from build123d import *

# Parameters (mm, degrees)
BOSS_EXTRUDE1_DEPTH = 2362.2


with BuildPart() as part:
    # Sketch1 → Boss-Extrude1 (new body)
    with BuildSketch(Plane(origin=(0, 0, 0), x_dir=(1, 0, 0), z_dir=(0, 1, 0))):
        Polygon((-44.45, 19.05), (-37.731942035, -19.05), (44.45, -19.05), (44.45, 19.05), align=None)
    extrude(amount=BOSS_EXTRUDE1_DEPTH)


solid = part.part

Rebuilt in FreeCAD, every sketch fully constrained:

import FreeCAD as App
import Part
import Sketcher
from FreeCAD import Vector
Q = App.Units.Quantity

doc = App.newDocument("Part")
body = doc.addObject("PartDesign::Body", "Body")

sketch1 = body.newObject("Sketcher::SketchObject", "Sketch")
sketch1.AttachmentSupport = (doc.getObject("XZ_Plane"), [""])
sketch1.MapMode = "FlatFace"
sketch1.addGeometry(Part.LineSegment(Vector(-44, -19, 0), Vector(-38, 19, 0)), False)
sketch1.addGeometry(Part.LineSegment(Vector(-38, 19, 0), Vector(44, 19, 0)), False)
sketch1.addGeometry(Part.LineSegment(Vector(44, 19, 0), Vector(44, -19, 0)), False)
sketch1.addGeometry(Part.LineSegment(Vector(44, -19, 0), Vector(-44, -19, 0)), False)
sketch1.addConstraint(Sketcher.Constraint("Coincident", 0, 2, 1, 1))
sketch1.addConstraint(Sketcher.Constraint("Coincident", 1, 2, 2, 1))
sketch1.addConstraint(Sketcher.Constraint("Coincident", 2, 2, 3, 1))
sketch1.addConstraint(Sketcher.Constraint("Coincident", 3, 2, 0, 1))
sketch1.addConstraint(Sketcher.Constraint("Horizontal", 1))
sketch1.addConstraint(Sketcher.Constraint("Vertical", 2))
sketch1.addConstraint(Sketcher.Constraint("Horizontal", 3))
sketch1.addConstraint(Sketcher.Constraint("Symmetric", 1, 2, 3, 2, -1, 1))
sketch1.addConstraint(Sketcher.Constraint("DistanceX", 3, 2, 3, 1, Q("3.5 in")))
sketch1.addConstraint(Sketcher.Constraint("DistanceY", 2, 2, 2, 1, Q("1.5 in")))
sketch1.addConstraint(Sketcher.Constraint("Angle", 0, Q("80 deg")))
pad1 = body.newObject("PartDesign::Pad", "Pad")
pad1.Profile = sketch1
pad1.Length = Q("93 in")
pad1.Reversed = True

doc.recompute()
